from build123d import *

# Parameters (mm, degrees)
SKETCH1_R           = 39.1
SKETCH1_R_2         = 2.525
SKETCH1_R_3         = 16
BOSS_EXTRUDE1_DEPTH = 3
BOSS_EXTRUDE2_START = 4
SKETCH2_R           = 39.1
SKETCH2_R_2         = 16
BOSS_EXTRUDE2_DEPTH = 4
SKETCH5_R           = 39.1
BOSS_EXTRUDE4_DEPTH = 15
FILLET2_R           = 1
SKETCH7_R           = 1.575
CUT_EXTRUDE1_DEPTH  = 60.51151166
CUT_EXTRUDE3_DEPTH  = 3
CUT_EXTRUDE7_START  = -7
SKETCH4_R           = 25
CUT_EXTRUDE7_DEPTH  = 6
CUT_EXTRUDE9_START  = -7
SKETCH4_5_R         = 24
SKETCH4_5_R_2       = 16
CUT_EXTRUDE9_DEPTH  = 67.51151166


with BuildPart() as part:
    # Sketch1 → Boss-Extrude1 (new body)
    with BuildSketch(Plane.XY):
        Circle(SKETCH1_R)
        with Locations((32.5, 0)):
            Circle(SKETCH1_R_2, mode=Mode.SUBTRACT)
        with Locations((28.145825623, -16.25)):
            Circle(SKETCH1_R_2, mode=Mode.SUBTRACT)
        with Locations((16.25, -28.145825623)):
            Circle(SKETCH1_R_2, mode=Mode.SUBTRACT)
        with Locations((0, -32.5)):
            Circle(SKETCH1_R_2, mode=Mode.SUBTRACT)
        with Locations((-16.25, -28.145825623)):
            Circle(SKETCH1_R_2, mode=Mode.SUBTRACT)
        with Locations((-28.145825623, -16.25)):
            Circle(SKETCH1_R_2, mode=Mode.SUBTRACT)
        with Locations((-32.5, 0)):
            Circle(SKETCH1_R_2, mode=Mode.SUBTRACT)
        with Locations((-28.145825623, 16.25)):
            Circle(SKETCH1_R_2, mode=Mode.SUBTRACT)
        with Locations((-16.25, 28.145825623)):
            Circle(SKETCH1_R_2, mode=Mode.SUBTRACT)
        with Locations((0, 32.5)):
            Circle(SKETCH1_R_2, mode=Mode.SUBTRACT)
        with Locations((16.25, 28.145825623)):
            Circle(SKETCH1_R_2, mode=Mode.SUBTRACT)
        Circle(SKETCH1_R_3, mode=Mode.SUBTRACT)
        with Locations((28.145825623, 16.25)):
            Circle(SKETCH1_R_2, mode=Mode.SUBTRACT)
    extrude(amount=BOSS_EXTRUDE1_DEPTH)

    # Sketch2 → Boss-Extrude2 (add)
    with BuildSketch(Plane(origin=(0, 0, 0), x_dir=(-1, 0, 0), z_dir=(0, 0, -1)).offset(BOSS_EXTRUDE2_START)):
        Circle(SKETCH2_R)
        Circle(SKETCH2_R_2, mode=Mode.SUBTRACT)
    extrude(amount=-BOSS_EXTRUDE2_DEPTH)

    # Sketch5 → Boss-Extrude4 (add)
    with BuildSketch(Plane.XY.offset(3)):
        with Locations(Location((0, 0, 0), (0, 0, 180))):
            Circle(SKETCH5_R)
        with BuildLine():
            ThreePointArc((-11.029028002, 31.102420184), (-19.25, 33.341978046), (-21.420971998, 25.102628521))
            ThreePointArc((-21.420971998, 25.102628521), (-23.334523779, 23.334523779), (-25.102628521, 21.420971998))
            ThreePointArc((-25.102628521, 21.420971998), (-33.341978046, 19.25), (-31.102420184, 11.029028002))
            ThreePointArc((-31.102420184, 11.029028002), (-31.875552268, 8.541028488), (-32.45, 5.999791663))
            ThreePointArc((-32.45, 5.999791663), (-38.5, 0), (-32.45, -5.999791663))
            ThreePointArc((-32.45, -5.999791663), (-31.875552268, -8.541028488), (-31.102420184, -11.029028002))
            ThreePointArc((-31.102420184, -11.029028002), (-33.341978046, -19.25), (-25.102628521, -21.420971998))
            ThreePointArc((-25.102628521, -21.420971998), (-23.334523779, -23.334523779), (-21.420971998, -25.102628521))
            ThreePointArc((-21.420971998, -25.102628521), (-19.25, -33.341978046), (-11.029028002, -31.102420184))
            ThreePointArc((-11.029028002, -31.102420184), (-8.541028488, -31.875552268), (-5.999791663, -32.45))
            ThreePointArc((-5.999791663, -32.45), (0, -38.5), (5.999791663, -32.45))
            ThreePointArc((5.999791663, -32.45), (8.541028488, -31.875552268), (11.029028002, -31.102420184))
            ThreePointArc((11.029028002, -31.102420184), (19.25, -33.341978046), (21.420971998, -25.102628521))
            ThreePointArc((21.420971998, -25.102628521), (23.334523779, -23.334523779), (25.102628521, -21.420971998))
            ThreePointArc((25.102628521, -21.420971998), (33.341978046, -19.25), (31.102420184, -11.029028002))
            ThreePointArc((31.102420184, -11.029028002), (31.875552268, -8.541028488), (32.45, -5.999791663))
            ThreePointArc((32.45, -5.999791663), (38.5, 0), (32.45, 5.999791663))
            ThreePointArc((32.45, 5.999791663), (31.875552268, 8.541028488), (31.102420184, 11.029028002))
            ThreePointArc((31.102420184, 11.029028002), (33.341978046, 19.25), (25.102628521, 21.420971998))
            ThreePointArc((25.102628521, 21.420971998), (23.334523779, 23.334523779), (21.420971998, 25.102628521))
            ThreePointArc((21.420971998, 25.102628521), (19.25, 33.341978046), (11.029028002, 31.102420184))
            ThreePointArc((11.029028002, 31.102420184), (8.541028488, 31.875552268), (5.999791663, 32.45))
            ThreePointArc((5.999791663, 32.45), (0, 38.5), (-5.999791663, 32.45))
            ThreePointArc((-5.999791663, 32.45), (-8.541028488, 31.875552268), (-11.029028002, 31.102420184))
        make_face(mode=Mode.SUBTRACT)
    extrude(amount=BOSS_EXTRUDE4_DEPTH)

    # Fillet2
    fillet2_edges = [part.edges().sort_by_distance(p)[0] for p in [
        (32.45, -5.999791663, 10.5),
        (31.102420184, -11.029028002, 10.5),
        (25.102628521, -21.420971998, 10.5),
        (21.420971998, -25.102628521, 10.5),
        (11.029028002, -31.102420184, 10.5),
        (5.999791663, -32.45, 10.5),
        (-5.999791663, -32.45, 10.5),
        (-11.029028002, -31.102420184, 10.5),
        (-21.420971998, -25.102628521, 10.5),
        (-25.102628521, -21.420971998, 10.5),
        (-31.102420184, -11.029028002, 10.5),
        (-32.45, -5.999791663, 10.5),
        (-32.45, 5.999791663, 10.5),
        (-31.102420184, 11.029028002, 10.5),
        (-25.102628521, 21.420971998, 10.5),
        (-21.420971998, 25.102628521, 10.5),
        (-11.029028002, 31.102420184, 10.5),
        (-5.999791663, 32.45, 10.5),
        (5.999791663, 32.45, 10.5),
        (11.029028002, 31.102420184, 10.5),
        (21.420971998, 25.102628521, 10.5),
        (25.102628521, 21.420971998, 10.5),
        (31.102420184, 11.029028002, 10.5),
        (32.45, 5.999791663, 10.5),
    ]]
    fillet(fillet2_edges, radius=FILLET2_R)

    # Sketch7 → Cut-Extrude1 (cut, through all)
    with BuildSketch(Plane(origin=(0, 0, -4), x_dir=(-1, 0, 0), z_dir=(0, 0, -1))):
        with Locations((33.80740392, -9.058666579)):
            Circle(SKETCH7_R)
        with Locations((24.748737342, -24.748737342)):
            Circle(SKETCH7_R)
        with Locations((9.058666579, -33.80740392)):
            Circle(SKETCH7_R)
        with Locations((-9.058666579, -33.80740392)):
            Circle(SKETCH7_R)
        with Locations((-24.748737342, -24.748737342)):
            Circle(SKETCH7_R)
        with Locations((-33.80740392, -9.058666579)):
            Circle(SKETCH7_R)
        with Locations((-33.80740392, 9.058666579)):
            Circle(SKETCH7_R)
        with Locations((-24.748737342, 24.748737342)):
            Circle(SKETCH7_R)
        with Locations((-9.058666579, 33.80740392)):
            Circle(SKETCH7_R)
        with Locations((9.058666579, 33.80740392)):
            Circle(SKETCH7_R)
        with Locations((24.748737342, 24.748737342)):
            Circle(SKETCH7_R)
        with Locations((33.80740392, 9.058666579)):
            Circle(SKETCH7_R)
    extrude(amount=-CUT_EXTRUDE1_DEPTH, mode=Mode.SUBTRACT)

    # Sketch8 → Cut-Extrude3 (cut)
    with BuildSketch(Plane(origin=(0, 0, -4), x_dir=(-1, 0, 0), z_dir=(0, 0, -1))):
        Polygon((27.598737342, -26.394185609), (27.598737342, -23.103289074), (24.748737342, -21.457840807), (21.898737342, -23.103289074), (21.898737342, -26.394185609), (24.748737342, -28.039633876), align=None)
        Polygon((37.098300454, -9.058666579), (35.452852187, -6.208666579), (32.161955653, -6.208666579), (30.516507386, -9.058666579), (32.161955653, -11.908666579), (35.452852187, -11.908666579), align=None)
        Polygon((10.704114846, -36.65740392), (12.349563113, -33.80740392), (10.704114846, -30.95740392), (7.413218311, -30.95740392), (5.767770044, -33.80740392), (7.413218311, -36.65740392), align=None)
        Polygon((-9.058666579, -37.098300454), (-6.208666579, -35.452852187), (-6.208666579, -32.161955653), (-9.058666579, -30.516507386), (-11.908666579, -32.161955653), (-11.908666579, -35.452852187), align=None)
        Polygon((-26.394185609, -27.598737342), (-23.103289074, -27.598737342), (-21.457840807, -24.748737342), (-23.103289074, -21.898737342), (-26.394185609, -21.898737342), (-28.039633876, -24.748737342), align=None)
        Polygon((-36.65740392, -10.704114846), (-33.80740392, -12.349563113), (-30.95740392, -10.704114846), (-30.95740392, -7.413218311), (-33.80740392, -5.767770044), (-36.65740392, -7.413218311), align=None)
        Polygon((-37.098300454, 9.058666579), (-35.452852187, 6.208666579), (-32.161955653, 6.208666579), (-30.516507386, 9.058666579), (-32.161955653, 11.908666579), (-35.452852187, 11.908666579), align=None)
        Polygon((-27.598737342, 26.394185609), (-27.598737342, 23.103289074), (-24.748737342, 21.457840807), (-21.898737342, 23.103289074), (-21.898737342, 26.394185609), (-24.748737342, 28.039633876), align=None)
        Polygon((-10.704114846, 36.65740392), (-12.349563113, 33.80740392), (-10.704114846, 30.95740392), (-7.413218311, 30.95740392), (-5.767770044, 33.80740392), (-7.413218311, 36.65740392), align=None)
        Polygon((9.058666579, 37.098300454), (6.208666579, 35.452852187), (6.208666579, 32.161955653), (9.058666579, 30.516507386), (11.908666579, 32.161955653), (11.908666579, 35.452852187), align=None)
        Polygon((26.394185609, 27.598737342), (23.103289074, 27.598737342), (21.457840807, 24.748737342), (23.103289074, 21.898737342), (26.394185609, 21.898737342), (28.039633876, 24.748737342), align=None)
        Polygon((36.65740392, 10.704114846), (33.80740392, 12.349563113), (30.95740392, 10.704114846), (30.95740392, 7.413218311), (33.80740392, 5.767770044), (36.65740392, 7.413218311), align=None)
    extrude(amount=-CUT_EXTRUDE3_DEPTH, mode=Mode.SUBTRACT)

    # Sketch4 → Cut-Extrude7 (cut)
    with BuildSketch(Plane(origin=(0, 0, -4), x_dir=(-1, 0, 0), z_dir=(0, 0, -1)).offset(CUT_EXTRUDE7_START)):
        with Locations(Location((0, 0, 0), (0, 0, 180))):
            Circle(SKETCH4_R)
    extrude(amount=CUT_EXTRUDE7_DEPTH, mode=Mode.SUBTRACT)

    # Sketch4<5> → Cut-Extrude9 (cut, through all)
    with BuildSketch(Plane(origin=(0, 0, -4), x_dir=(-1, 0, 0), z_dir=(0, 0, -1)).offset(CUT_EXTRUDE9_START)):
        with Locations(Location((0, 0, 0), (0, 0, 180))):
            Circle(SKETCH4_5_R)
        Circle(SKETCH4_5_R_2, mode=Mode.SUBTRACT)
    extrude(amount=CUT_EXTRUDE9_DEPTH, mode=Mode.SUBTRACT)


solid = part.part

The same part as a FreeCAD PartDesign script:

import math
import FreeCAD as App
import Part
import Sketcher
Q = App.Units.Quantity


def edges_at(feature, points):
    """Names of the edges that pass closest to the given points."""
    edges = feature.Shape.Edges
    near = lambda p: min(range(len(edges)), key=lambda i: edges[i].distToShape(Part.Vertex(*p))[0])
    return sorted({f"Edge{near(p) + 1}" for p in points})

doc = App.newDocument("Part")
body = doc.addObject("PartDesign::Body", "Body")

sketch1 = doc.addObject("Sketcher::SketchObject", "Sketch")
body.addObject(sketch1)
sketch1.AttachmentSupport = (doc.XY_Plane, [""])
sketch1.MapMode = "FlatFace"
sketch1.addGeometry([
    Part.Circle(App.Vector(0, 0, 0), App.Vector(0, 0, 1), 39.1),
    Part.Circle(App.Vector(-16.2, -28.1, 0), App.Vector(0, 0, 1), 2.5),
    Part.Circle(App.Vector(-28.1, -16.2, 0), App.Vector(0, 0, 1), 2.5),
    Part.Circle(App.Vector(0, -32.5, 0), App.Vector(0, 0, 1), 2.5),
    Part.Circle(App.Vector(16.2, -28.1, 0), App.Vector(0, 0, 1), 2.5),
    Part.Circle(App.Vector(28.1, -16.2, 0), App.Vector(0, 0, 1), 2.5),
    Part.Circle(App.Vector(-32.5, 0, 0), App.Vector(0, 0, 1), 2.5),
    Part.Circle(App.Vector(-28.1, 16.2, 0), App.Vector(0, 0, 1), 2.5),
    Part.Circle(App.Vector(-16.2, 28.1, 0), App.Vector(0, 0, 1), 2.5),
    Part.Circle(App.Vector(0, 0, 0), App.Vector(0, 0, 1), 16),
    Part.Circle(App.Vector(32.5, 0, 0), App.Vector(0, 0, 1), 2.5),
    Part.Circle(App.Vector(28.1, 16.2, 0), App.Vector(0, 0, 1), 2.5),
    Part.Circle(App.Vector(0, 32.5, 0), App.Vector(0, 0, 1), 2.5),
    Part.Circle(App.Vector(16.2, 28.1, 0), App.Vector(0, 0, 1), 2.5),
], False)
sketch1.addConstraint([
    Sketcher.Constraint("Coincident", 0, 3, -1, 1),
    Sketcher.Constraint("Coincident", 9, 3, -1, 1),
    Sketcher.Constraint("Equal", 1, 2),
    Sketcher.Constraint("Equal", 2, 3),
    Sketcher.Constraint("Equal", 3, 4),
    Sketcher.Constraint("Equal", 4, 5),
    Sketcher.Constraint("Equal", 5, 6),
    Sketcher.Constraint("Equal", 6, 7),
    Sketcher.Constraint("Equal", 7, 8),
    Sketcher.Constraint("Equal", 8, 10),
    Sketcher.Constraint("Equal", 10, 11),
    Sketcher.Constraint("Equal", 11, 12),
    Sketcher.Constraint("Equal", 12, 13),
    Sketcher.Constraint("Symmetric", 5, 3, 7, 3, -1, 1),
    Sketcher.Constraint("Symmetric", 4, 3, 8, 3, -1, 1),
    Sketcher.Constraint("Symmetric", 6, 3, 10, 3, -1, 1),
    Sketcher.Constraint("Symmetric", 2, 3, 11, 3, -1, 1),
    Sketcher.Constraint("Symmetric", 3, 3, 12, 3, -1, 1),
    Sketcher.Constraint("Symmetric", 1, 3, 13, 3, -1, 1),
    Sketcher.Constraint("Symmetric", 1, 3, 4, 3, -2),
    Sketcher.Constraint("Symmetric", 2, 3, 5, 3, -2),
    Sketcher.Constraint("PointOnObject", 3, 3, -2),
    Sketcher.Constraint("PointOnObject", 6, 3, -1),
    Sketcher.Constraint("Diameter", 9, Q("32 mm")),
    Sketcher.Constraint("Diameter", 0, Q("78.2 mm")),
    Sketcher.Constraint("Diameter", 1, Q("5.05 mm")),
    Sketcher.Constraint("DistanceY", 3, 3, -1, 1, Q("32.5 mm")),
    Sketcher.Constraint("DistanceX", 6, 3, -1, 1, Q("32.5 mm")),
    Sketcher.Constraint("DistanceX", 1, 3, 4, 3, Q("32.5 mm")),
    Sketcher.Constraint("DistanceY", 2, 3, 7, 3, Q("32.5 mm")),
    Sketcher.Constraint("DistanceX", 2, 3, 5, 3, Q("56.291651 mm")),
    Sketcher.Constraint("DistanceY", 1, 3, 8, 3, Q("56.291651 mm")),
])
pad1 = doc.addObject("PartDesign::Pad", "Pad")
body.addObject(pad1)
pad1.Profile = sketch1
pad1.Length = 3

sketch2 = doc.addObject("Sketcher::SketchObject", "Sketch001")
body.addObject(sketch2)
sketch2.AttachmentSupport = (doc.XY_Plane, [""])
sketch2.MapMode = "FlatFace"
sketch2.AttachmentOffset = App.Placement(App.Vector(0, 0, -4), App.Rotation())
sketch2.addGeometry([
    Part.Circle(App.Vector(0, 0, 0), App.Vector(0, 0, 1), 39),
    Part.Circle(App.Vector(0, 0, 0), App.Vector(0, 0, 1), 16),
], False)
sketch2.addConstraint([
    Sketcher.Constraint("Coincident", 0, 3, -1, 1),
    Sketcher.Constraint("Coincident", 1, 3, -1, 1),
    Sketcher.Constraint("Diameter", 1, Q("32 mm")),
    Sketcher.Constraint("Diameter", 0, Q("78.2 mm")),
])
pad2 = doc.addObject("PartDesign::Pad", "Pad001")
body.addObject(pad2)
pad2.Profile = sketch2
pad2.Length = 4

sketch3 = doc.addObject("Sketcher::SketchObject", "Sketch002")
body.addObject(sketch3)
sketch3.AttachmentSupport = (doc.XY_Plane, [""])
sketch3.MapMode = "FlatFace"
sketch3.AttachmentOffset = App.Placement(App.Vector(0, 0, 3), App.Rotation())
sketch3.addGeometry([
    Part.Circle(App.Vector(0, 0, 0), App.Vector(0, 0, 1), 39),
    Part.ArcOfCircle(Part.Circle(App.Vector(-16, 28, 0), App.Vector(0, 0, 1), 6), math.radians(30), math.radians(210)),
    Part.ArcOfCircle(Part.Circle(App.Vector(0, 0, 0), App.Vector(0, 0, 1), 33), math.radians(100.48), math.radians(109.52)),
    Part.ArcOfCircle(Part.Circle(App.Vector(0, 32, 0), App.Vector(0, 0, 1), 6), math.radians(0), math.radians(180)),
    Part.ArcOfCircle(Part.Circle(App.Vector(0, 0, 0), App.Vector(0, 0, 1), 33), math.radians(70.48), math.radians(79.52)),
    Part.ArcOfCircle(Part.Circle(App.Vector(16, 28, 0), App.Vector(0, 0, 1), 6), math.radians(-30), math.radians(150)),
    Part.ArcOfCircle(Part.Circle(App.Vector(0, 0, 0), App.Vector(0, 0, 1), 33), math.radians(40.48), math.radians(49.52)),
    Part.ArcOfCircle(Part.Circle(App.Vector(28, 16, 0), App.Vector(0, 0, 1), 6), math.radians(-60), math.radians(120)),
    Part.ArcOfCircle(Part.Circle(App.Vector(0, 0, 0), App.Vector(0, 0, 1), 33), math.radians(10.48), math.radians(19.52)),
    Part.ArcOfCircle(Part.Circle(App.Vector(32, 0, 0), App.Vector(0, 0, 1), 6), math.radians(-90), math.radians(90)),
    Part.ArcOfCircle(Part.Circle(App.Vector(0, 0, 0), App.Vector(0, 0, 1), 33), math.radians(-19.52), math.radians(-10.48)),
    Part.ArcOfCircle(Part.Circle(App.Vector(28, -16, 0), App.Vector(0, 0, 1), 6), math.radians(-120), math.radians(60)),
    Part.ArcOfCircle(Part.Circle(App.Vector(0, 0, 0), App.Vector(0, 0, 1), 33), math.radians(-49.52), math.radians(-40.48)),
    Part.ArcOfCircle(Part.Circle(App.Vector(16, -28, 0), App.Vector(0, 0, 1), 6), math.radians(-150), math.radians(30)),
    Part.ArcOfCircle(Part.Circle(App.Vector(0, 0, 0), App.Vector(0, 0, 1), 33), math.radians(-79.52), math.radians(-70.48)),
    Part.ArcOfCircle(Part.Circle(App.Vector(0, -32, 0), App.Vector(0, 0, 1), 6), math.radians(180), math.radians(360)),
    Part.ArcOfCircle(Part.Circle(App.Vector(0, 0, 0), App.Vector(0, 0, 1), 33), math.radians(-109.52), math.radians(-100.48)),
    Part.ArcOfCircle(Part.Circle(App.Vector(-16, -28, 0), App.Vector(0, 0, 1), 6), math.radians(150), math.radians(330)),
    Part.ArcOfCircle(Part.Circle(App.Vector(0, 0, 0), App.Vector(0, 0, 1), 33), math.radians(-139.52), math.radians(-130.48)),
    Part.ArcOfCircle(Part.Circle(App.Vector(-28, -16, 0), App.Vector(0, 0, 1), 6), math.radians(120), math.radians(300)),
    Part.ArcOfCircle(Part.Circle(App.Vector(0, 0, 0), App.Vector(0, 0, 1), 33), math.radians(-169.52), math.radians(-160.48)),
    Part.ArcOfCircle(Part.Circle(App.Vector(-32, 0, 0), App.Vector(0, 0, 1), 6), math.radians(90), math.radians(270)),
    Part.ArcOfCircle(Part.Circle(App.Vector(0, 0, 0), App.Vector(0, 0, 1), 33), math.radians(160.48), math.radians(169.52)),
    Part.ArcOfCircle(Part.Circle(App.Vector(-28, 16, 0), App.Vector(0, 0, 1), 6), math.radians(60), math.radians(240)),
    Part.ArcOfCircle(Part.Circle(App.Vector(0, 0, 0), App.Vector(0, 0, 1), 33), math.radians(130.48), math.radians(139.52)),
], False)
sketch3.addConstraint([
    Sketcher.Constraint("Coincident", 1, 1, 2, 2),
    Sketcher.Constraint("Coincident", 2, 1, 3, 2),
    Sketcher.Constraint("Coincident", 3, 1, 4, 2),
    Sketcher.Constraint("Coincident", 4, 1, 5, 2),
    Sketcher.Constraint("Coincident", 5, 1, 6, 2),
    Sketcher.Constraint("Coincident", 6, 1, 7, 2),
    Sketcher.Constraint("Coincident", 7, 1, 8, 2),
    Sketcher.Constraint("Coincident", 8, 1, 9, 2),
    Sketcher.Constraint("Coincident", 9, 1, 10, 2),
    Sketcher.Constraint("Coincident", 10, 1, 11, 2),
    Sketcher.Constraint("Coincident", 11, 1, 12, 2),
    Sketcher.Constraint("Coincident", 12, 1, 13, 2),
    Sketcher.Constraint("Coincident", 13, 1, 14, 2),
    Sketcher.Constraint("Coincident", 14, 1, 15, 2),
    Sketcher.Constraint("Coincident", 15, 1, 16, 2),
    Sketcher.Constraint("Coincident", 16, 1, 17, 2),
    Sketcher.Constraint("Coincident", 17, 1, 18, 2),
    Sketcher.Constraint("Coincident", 18, 1, 19, 2),
    Sketcher.Constraint("Coincident", 19, 1, 20, 2),
    Sketcher.Constraint("Coincident", 20, 1, 21, 2),
    Sketcher.Constraint("Coincident", 21, 1, 22, 2),
    Sketcher.Constraint("Coincident", 22, 1, 23, 2),
    Sketcher.Constraint("Coincident", 23, 1, 24, 2),
    Sketcher.Constraint("Coincident", 24, 1, 1, 2),
    Sketcher.Constraint("Coincident", 0, 3, -1, 1),
    Sketcher.Constraint("Coincident", 2, 3, -1, 1),
    Sketcher.Constraint("Coincident", 4, 3, -1, 1),
    Sketcher.Constraint("Coincident", 6, 3, -1, 1),
    Sketcher.Constraint("Coincident", 8, 3, -1, 1),
    Sketcher.Constraint("Coincident", 10, 3, -1, 1),
    Sketcher.Constraint("Coincident", 12, 3, -1, 1),
    Sketcher.Constraint("Coincident", 14, 3, -1, 1),
    Sketcher.Constraint("Coincident", 16, 3, -1, 1),
    Sketcher.Constraint("Coincident", 18, 3, -1, 1),
    Sketcher.Constraint("Coincident", 20, 3, -1, 1),
    Sketcher.Constraint("Coincident", 22, 3, -1, 1),
    Sketcher.Constraint("Coincident", 24, 3, -1, 1),
    Sketcher.Constraint("Equal", 1, 3),
    Sketcher.Constraint("Equal", 2, 4),
    Sketcher.Constraint("Equal", 3, 5),
    Sketcher.Constraint("Equal", 4, 6),
    Sketcher.Constraint("Equal", 5, 7),
    Sketcher.Constraint("Equal", 6, 8),
    Sketcher.Constraint("Equal", 7, 9),
    Sketcher.Constraint("Equal", 8, 10),
    Sketcher.Constraint("Equal", 9, 11),
    Sketcher.Constraint("Equal", 10, 12),
    Sketcher.Constraint("Equal", 11, 13),
    Sketcher.Constraint("Equal", 12, 14),
    Sketcher.Constraint("Equal", 13, 15),
    Sketcher.Constraint("Equal", 14, 16),
    Sketcher.Constraint("Equal", 15, 17),
    Sketcher.Constraint("Equal", 16, 18),
    Sketcher.Constraint("Equal", 17, 19),
    Sketcher.Constraint("Equal", 18, 20),
    Sketcher.Constraint("Equal", 19, 21),
    Sketcher.Constraint("Equal", 20, 22),
    Sketcher.Constraint("Equal", 21, 23),
    Sketcher.Constraint("Equal", 22, 24),
    Sketcher.Constraint("Symmetric", 1, 3, 13, 3, -1, 1),
    Sketcher.Constraint("Symmetric", 3, 3, 15, 3, -1, 1),
    Sketcher.Constraint("Symmetric", 5, 3, 17, 3, -1, 1),
    Sketcher.Constraint("Symmetric", 7, 3, 19, 3, -1, 1),
    Sketcher.Constraint("Symmetric", 9, 3, 21, 3, -1, 1),
    Sketcher.Constraint("Symmetric", 11, 3, 23, 3, -1, 1),
    Sketcher.Constraint("Symmetric", 1, 3, 5, 3, -2),
    Sketcher.Constraint("Symmetric", 11, 3, 19, 3, -2),
    Sketcher.Constraint("PointOnObject", 3, 3, -2),
    Sketcher.Constraint("PointOnObject", 9, 3, -1),
    Sketcher.Constraint("Radius", 1, Q("6 mm")),
    Sketcher.Constraint("Radius", 2, Q("33 mm")),
    Sketcher.Constraint("Diameter", 0, Q("78.2 mm")),
    Sketcher.Constraint("DistanceY", -1, 1, 3, 3, Q("32.5 mm")),
    Sketcher.Constraint("DistanceX", -1, 1, 9, 3, Q("32.5 mm")),
    Sketcher.Constraint("DistanceX", 1, 3, 5, 3, Q("32.5 mm")),
    Sketcher.Constraint("DistanceY", 11, 3, 7, 3, Q("32.5 mm")),
    Sketcher.Constraint("DistanceX", 4, 1, 6, 1, Q("14.073601 mm")),
    Sketcher.Constraint("DistanceY", 7, 1, 5, 1, Q("14.073601 mm")),
])
pad3 = doc.addObject("PartDesign::Pad", "Pad002")
body.addObject(pad3)
pad3.Profile = sketch3
pad3.Length = 15
doc.recompute()

fillet = doc.addObject("PartDesign::Fillet", "Fillet")
body.addObject(fillet)
fillet.Base = (pad3, edges_at(pad3, [
    (32.45, -6, 10.5),
    (31.102, -11.029, 10.5),
    (25.103, -21.421, 10.5),
    (21.421, -25.103, 10.5),
    (11.029, -31.102, 10.5),
    (6, -32.45, 10.5),
    (-6, -32.45, 10.5),
    (-11.029, -31.102, 10.5),
    (-21.421, -25.103, 10.5),
    (-25.103, -21.421, 10.5),
    (-31.102, -11.029, 10.5),
    (-32.45, -6, 10.5),
    (-32.45, 6, 10.5),
    (-31.102, 11.029, 10.5),
    (-25.103, 21.421, 10.5),
    (-21.421, 25.103, 10.5),
    (-11.029, 31.102, 10.5),
    (-6, 32.45, 10.5),
    (6, 32.45, 10.5),
    (11.029, 31.102, 10.5),
    (21.421, 25.103, 10.5),
    (25.103, 21.421, 10.5),
    (31.102, 11.029, 10.5),
    (32.45, 6, 10.5),
]))
fillet.Radius = 1

sketch4 = doc.addObject("Sketcher::SketchObject", "Sketch003")
body.addObject(sketch4)
sketch4.AttachmentSupport = (doc.XY_Plane, [""])
sketch4.MapMode = "FlatFace"
sketch4.AttachmentOffset = App.Placement(App.Vector(0, 0, -4), App.Rotation())
sketch4.addGeometry([
    Part.Circle(App.Vector(-33.8, -9.1, 0), App.Vector(0, 0, 1), 1.6),
    Part.Circle(App.Vector(-24.7, -24.7, 0), App.Vector(0, 0, 1), 1.6),
    Part.Circle(App.Vector(-9.1, -33.8, 0), App.Vector(0, 0, 1), 1.6),
    Part.Circle(App.Vector(9.1, -33.8, 0), App.Vector(0, 0, 1), 1.6),
    Part.Circle(App.Vector(24.7, -24.7, 0), App.Vector(0, 0, 1), 1.6),
    Part.Circle(App.Vector(33.8, -9.1, 0), App.Vector(0, 0, 1), 1.6),
    Part.Circle(App.Vector(33.8, 9.1, 0), App.Vector(0, 0, 1), 1.6),
    Part.Circle(App.Vector(24.7, 24.7, 0), App.Vector(0, 0, 1), 1.6),
    Part.Circle(App.Vector(9.1, 33.8, 0), App.Vector(0, 0, 1), 1.6),
    Part.Circle(App.Vector(-9.1, 33.8, 0), App.Vector(0, 0, 1), 1.6),
    Part.Circle(App.Vector(-24.7, 24.7, 0), App.Vector(0, 0, 1), 1.6),
    Part.Circle(App.Vector(-33.8, 9.1, 0), App.Vector(0, 0, 1), 1.6),
], False)
sketch4.addConstraint([
    Sketcher.Constraint("Equal", 0, 1),
    Sketcher.Constraint("Equal", 1, 2),
    Sketcher.Constraint("Equal", 2, 3),
    Sketcher.Constraint("Equal", 3, 4),
    Sketcher.Constraint("Equal", 4, 5),
    Sketcher.Constraint("Equal", 5, 6),
    Sketcher.Constraint("Equal", 6, 7),
    Sketcher.Constraint("Equal", 7, 8),
    Sketcher.Constraint("Equal", 8, 9),
    Sketcher.Constraint("Equal", 9, 10),
    Sketcher.Constraint("Equal", 10, 11),
    Sketcher.Constraint("Symmetric", 0, 3, 6, 3, -1, 1),
    Sketcher.Constraint("Symmetric", 1, 3, 7, 3, -1, 1),
    Sketcher.Constraint("Symmetric", 2, 3, 8, 3, -1, 1),
    Sketcher.Constraint("Symmetric", 3, 3, 9, 3, -1, 1),
    Sketcher.Constraint("Symmetric", 4, 3, 10, 3, -1, 1),
    Sketcher.Constraint("Symmetric", 5, 3, 11, 3, -1, 1),
    Sketcher.Constraint("Symmetric", 2, 3, 3, 3, -2),
    Sketcher.Constraint("Symmetric", 1, 3, 4, 3, -2),
    Sketcher.Constraint("Symmetric", 0, 3, 5, 3, -2),
    Sketcher.Constraint("Diameter", 0, Q("3.15 mm")),
    Sketcher.Constraint("DistanceY", 1, 3, 0, 3, Q("15.690071 mm")),
    Sketcher.Constraint("DistanceX", 1, 3, 2, 3, Q("15.690071 mm")),
    Sketcher.Constraint("DistanceX", 0, 3, 3, 3, Q("42.86607 mm")),
    Sketcher.Constraint("DistanceY", 3, 3, 6, 3, Q("42.86607 mm")),
    Sketcher.Constraint("DistanceX", 0, 3, -1, 1, Q("33.807404 mm")),
    Sketcher.Constraint("DistanceY", 0, 3, -1, 1, Q("9.058667 mm")),
])
pocket1 = doc.addObject("PartDesign::Pocket", "Pocket")
body.addObject(pocket1)
pocket1.Profile = sketch4
pocket1.Type = "ThroughAll"
pocket1.Reversed = True

sketch5 = doc.addObject("Sketcher::SketchObject", "Sketch004")
body.addObject(sketch5)
sketch5.AttachmentSupport = (doc.XY_Plane, [""])
sketch5.MapMode = "FlatFace"
sketch5.AttachmentOffset = App.Placement(App.Vector(0, 0, -4), App.Rotation())
sketch5.addGeometry([
    Part.LineSegment(App.Vector(-27.6, -26.4, 0), App.Vector(-27.6, -23.1, 0)),
    Part.LineSegment(App.Vector(-27.6, -23.1, 0), App.Vector(-24.7, -21.5, 0)),
    Part.LineSegment(App.Vector(-24.7, -21.5, 0), App.Vector(-21.9, -23.1, 0)),
    Part.LineSegment(App.Vector(-21.9, -23.1, 0), App.Vector(-21.9, -26.4, 0)),
    Part.LineSegment(App.Vector(-21.9, -26.4, 0), App.Vector(-24.7, -28, 0)),
    Part.LineSegment(App.Vector(-24.7, -28, 0), App.Vector(-27.6, -26.4, 0)),
    Part.LineSegment(App.Vector(-37.1, -9.1, 0), App.Vector(-35.5, -6.2, 0)),
    Part.LineSegment(App.Vector(-35.5, -6.2, 0), App.Vector(-32.2, -6.2, 0)),
    Part.LineSegment(App.Vector(-32.2, -6.2, 0), App.Vector(-30.5, -9.1, 0)),
    Part.LineSegment(App.Vector(-30.5, -9.1, 0), App.Vector(-32.2, -11.9, 0)),
    Part.LineSegment(App.Vector(-32.2, -11.9, 0), App.Vector(-35.5, -11.9, 0)),
    Part.LineSegment(App.Vector(-35.5, -11.9, 0), App.Vector(-37.1, -9.1, 0)),
    Part.LineSegment(App.Vector(-10.7, -36.7, 0), App.Vector(-12.3, -33.8, 0)),
    Part.LineSegment(App.Vector(-12.3, -33.8, 0), App.Vector(-10.7, -31, 0)),
    Part.LineSegment(App.Vector(-10.7, -31, 0), App.Vector(-7.4, -31, 0)),
    Part.LineSegment(App.Vector(-7.4, -31, 0), App.Vector(-5.8, -33.8, 0)),
    Part.LineSegment(App.Vector(-5.8, -33.8, 0), App.Vector(-7.4, -36.7, 0)),
    Part.LineSegment(App.Vector(-7.4, -36.7, 0), App.Vector(-10.7, -36.7, 0)),
    Part.LineSegment(App.Vector(9.1, -37.1, 0), App.Vector(6.2, -35.5, 0)),
    Part.LineSegment(App.Vector(6.2, -35.5, 0), App.Vector(6.2, -32.2, 0)),
    Part.LineSegment(App.Vector(6.2, -32.2, 0), App.Vector(9.1, -30.5, 0)),
    Part.LineSegment(App.Vector(9.1, -30.5, 0), App.Vector(11.9, -32.2, 0)),
    Part.LineSegment(App.Vector(11.9, -32.2, 0), App.Vector(11.9, -35.5, 0)),
    Part.LineSegment(App.Vector(11.9, -35.5, 0), App.Vector(9.1, -37.1, 0)),
    Part.LineSegment(App.Vector(26.4, -27.6, 0), App.Vector(23.1, -27.6, 0)),
    Part.LineSegment(App.Vector(23.1, -27.6, 0), App.Vector(21.5, -24.7, 0)),
    Part.LineSegment(App.Vector(21.5, -24.7, 0), App.Vector(23.1, -21.9, 0)),
    Part.LineSegment(App.Vector(23.1, -21.9, 0), App.Vector(26.4, -21.9, 0)),
    Part.LineSegment(App.Vector(26.4, -21.9, 0), App.Vector(28, -24.7, 0)),
    Part.LineSegment(App.Vector(28, -24.7, 0), App.Vector(26.4, -27.6, 0)),
    Part.LineSegment(App.Vector(36.7, -10.7, 0), App.Vector(33.8, -12.3, 0)),
    Part.LineSegment(App.Vector(33.8, -12.3, 0), App.Vector(31, -10.7, 0)),
    Part.LineSegment(App.Vector(31, -10.7, 0), App.Vector(31, -7.4, 0)),
    Part.LineSegment(App.Vector(31, -7.4, 0), App.Vector(33.8, -5.8, 0)),
    Part.LineSegment(App.Vector(33.8, -5.8, 0), App.Vector(36.7, -7.4, 0)),
    Part.LineSegment(App.Vector(36.7, -7.4, 0), App.Vector(36.7, -10.7, 0)),
    Part.LineSegment(App.Vector(37.1, 9.1, 0), App.Vector(35.5, 6.2, 0)),
    Part.LineSegment(App.Vector(35.5, 6.2, 0), App.Vector(32.2, 6.2, 0)),
    Part.LineSegment(App.Vector(32.2, 6.2, 0), App.Vector(30.5, 9.1, 0)),
    Part.LineSegment(App.Vector(30.5, 9.1, 0), App.Vector(32.2, 11.9, 0)),
    Part.LineSegment(App.Vector(32.2, 11.9, 0), App.Vector(35.5, 11.9, 0)),
    Part.LineSegment(App.Vector(35.5, 11.9, 0), App.Vector(37.1, 9.1, 0)),
    Part.LineSegment(App.Vector(27.6, 26.4, 0), App.Vector(27.6, 23.1, 0)),
    Part.LineSegment(App.Vector(27.6, 23.1, 0), App.Vector(24.7, 21.5, 0)),
    Part.LineSegment(App.Vector(24.7, 21.5, 0), App.Vector(21.9, 23.1, 0)),
    Part.LineSegment(App.Vector(21.9, 23.1, 0), App.Vector(21.9, 26.4, 0)),
    Part.LineSegment(App.Vector(21.9, 26.4, 0), App.Vector(24.7, 28, 0)),
    Part.LineSegment(App.Vector(24.7, 28, 0), App.Vector(27.6, 26.4, 0)),
    Part.LineSegment(App.Vector(10.7, 36.7, 0), App.Vector(12.3, 33.8, 0)),
    Part.LineSegment(App.Vector(12.3, 33.8, 0), App.Vector(10.7, 31, 0)),
    Part.LineSegment(App.Vector(10.7, 31, 0), App.Vector(7.4, 31, 0)),
    Part.LineSegment(App.Vector(7.4, 31, 0), App.Vector(5.8, 33.8, 0)),
    Part.LineSegment(App.Vector(5.8, 33.8, 0), App.Vector(7.4, 36.7, 0)),
    Part.LineSegment(App.Vector(7.4, 36.7, 0), App.Vector(10.7, 36.7, 0)),
    Part.LineSegment(App.Vector(-9.1, 37.1, 0), App.Vector(-6.2, 35.5, 0)),
    Part.LineSegment(App.Vector(-6.2, 35.5, 0), App.Vector(-6.2, 32.2, 0)),
    Part.LineSegment(App.Vector(-6.2, 32.2, 0), App.Vector(-9.1, 30.5, 0)),
    Part.LineSegment(App.Vector(-9.1, 30.5, 0), App.Vector(-11.9, 32.2, 0)),
    Part.LineSegment(App.Vector(-11.9, 32.2, 0), App.Vector(-11.9, 35.5, 0)),
    Part.LineSegment(App.Vector(-11.9, 35.5, 0), App.Vector(-9.1, 37.1, 0)),
    Part.LineSegment(App.Vector(-26.4, 27.6, 0), App.Vector(-23.1, 27.6, 0)),
    Part.LineSegment(App.Vector(-23.1, 27.6, 0), App.Vector(-21.5, 24.7, 0)),
    Part.LineSegment(App.Vector(-21.5, 24.7, 0), App.Vector(-23.1, 21.9, 0)),
    Part.LineSegment(App.Vector(-23.1, 21.9, 0), App.Vector(-26.4, 21.9, 0)),
    Part.LineSegment(App.Vector(-26.4, 21.9, 0), App.Vector(-28, 24.7, 0)),
    Part.LineSegment(App.Vector(-28, 24.7, 0), App.Vector(-26.4, 27.6, 0)),
    Part.LineSegment(App.Vector(-36.7, 10.7, 0), App.Vector(-33.8, 12.3, 0)),
    Part.LineSegment(App.Vector(-33.8, 12.3, 0), App.Vector(-31, 10.7, 0)),
    Part.LineSegment(App.Vector(-31, 10.7, 0), App.Vector(-31, 7.4, 0)),
    Part.LineSegment(App.Vector(-31, 7.4, 0), App.Vector(-33.8, 5.8, 0)),
    Part.LineSegment(App.Vector(-33.8, 5.8, 0), App.Vector(-36.7, 7.4, 0)),
    Part.LineSegment(App.Vector(-36.7, 7.4, 0), App.Vector(-36.7, 10.7, 0)),
], False)
sketch5.addConstraint([
    Sketcher.Constraint("Coincident", 0, 2, 1, 1),
    Sketcher.Constraint("Coincident", 1, 2, 2, 1),
    Sketcher.Constraint("Coincident", 2, 2, 3, 1),
    Sketcher.Constraint("Coincident", 3, 2, 4, 1),
    Sketcher.Constraint("Coincident", 4, 2, 5, 1),
    Sketcher.Constraint("Coincident", 5, 2, 0, 1),
    Sketcher.Constraint("Coincident", 6, 2, 7, 1),
    Sketcher.Constraint("Coincident", 7, 2, 8, 1),
    Sketcher.Constraint("Coincident", 8, 2, 9, 1),
    Sketcher.Constraint("Coincident", 9, 2, 10, 1),
    Sketcher.Constraint("Coincident", 10, 2, 11, 1),
    Sketcher.Constraint("Coincident", 11, 2, 6, 1),
    Sketcher.Constraint("Coincident", 12, 2, 13, 1),
    Sketcher.Constraint("Coincident", 13, 2, 14, 1),
    Sketcher.Constraint("Coincident", 14, 2, 15, 1),
    Sketcher.Constraint("Coincident", 15, 2, 16, 1),
    Sketcher.Constraint("Coincident", 16, 2, 17, 1),
    Sketcher.Constraint("Coincident", 17, 2, 12, 1),
    Sketcher.Constraint("Coincident", 18, 2, 19, 1),
    Sketcher.Constraint("Coincident", 19, 2, 20, 1),
    Sketcher.Constraint("Coincident", 20, 2, 21, 1),
    Sketcher.Constraint("Coincident", 21, 2, 22, 1),
    Sketcher.Constraint("Coincident", 22, 2, 23, 1),
    Sketcher.Constraint("Coincident", 23, 2, 18, 1),
    Sketcher.Constraint("Coincident", 24, 2, 25, 1),
    Sketcher.Constraint("Coincident", 25, 2, 26, 1),
    Sketcher.Constraint("Coincident", 26, 2, 27, 1),
    Sketcher.Constraint("Coincident", 27, 2, 28, 1),
    Sketcher.Constraint("Coincident", 28, 2, 29, 1),
    Sketcher.Constraint("Coincident", 29, 2, 24, 1),
    Sketcher.Constraint("Coincident", 30, 2, 31, 1),
    Sketcher.Constraint("Coincident", 31, 2, 32, 1),
    Sketcher.Constraint("Coincident", 32, 2, 33, 1),
    Sketcher.Constraint("Coincident", 33, 2, 34, 1),
    Sketcher.Constraint("Coincident", 34, 2, 35, 1),
    Sketcher.Constraint("Coincident", 35, 2, 30, 1),
    Sketcher.Constraint("Coincident", 36, 2, 37, 1),
    Sketcher.Constraint("Coincident", 37, 2, 38, 1),
    Sketcher.Constraint("Coincident", 38, 2, 39, 1),
    Sketcher.Constraint("Coincident", 39, 2, 40, 1),
    Sketcher.Constraint("Coincident", 40, 2, 41, 1),
    Sketcher.Constraint("Coincident", 41, 2, 36, 1),
    Sketcher.Constraint("Coincident", 42, 2, 43, 1),
    Sketcher.Constraint("Coincident", 43, 2, 44, 1),
    Sketcher.Constraint("Coincident", 44, 2, 45, 1),
    Sketcher.Constraint("Coincident", 45, 2, 46, 1),
    Sketcher.Constraint("Coincident", 46, 2, 47, 1),
    Sketcher.Constraint("Coincident", 47, 2, 42, 1),
    Sketcher.Constraint("Coincident", 48, 2, 49, 1),
    Sketcher.Constraint("Coincident", 49, 2, 50, 1),
    Sketcher.Constraint("Coincident", 50, 2, 51, 1),
    Sketcher.Constraint("Coincident", 51, 2, 52, 1),
    Sketcher.Constraint("Coincident", 52, 2, 53, 1),
    Sketcher.Constraint("Coincident", 53, 2, 48, 1),
    Sketcher.Constraint("Coincident", 54, 2, 55, 1),
    Sketcher.Constraint("Coincident", 55, 2, 56, 1),
    Sketcher.Constraint("Coincident", 56, 2, 57, 1),
    Sketcher.Constraint("Coincident", 57, 2, 58, 1),
    Sketcher.Constraint("Coincident", 58, 2, 59, 1),
    Sketcher.Constraint("Coincident", 59, 2, 54, 1),
    Sketcher.Constraint("Coincident", 60, 2, 61, 1),
    Sketcher.Constraint("Coincident", 61, 2, 62, 1),
    Sketcher.Constraint("Coincident", 62, 2, 63, 1),
    Sketcher.Constraint("Coincident", 63, 2, 64, 1),
    Sketcher.Constraint("Coincident", 64, 2, 65, 1),
    Sketcher.Constraint("Coincident", 65, 2, 60, 1),
    Sketcher.Constraint("Coincident", 66, 2, 67, 1),
    Sketcher.Constraint("Coincident", 67, 2, 68, 1),
    Sketcher.Constraint("Coincident", 68, 2, 69, 1),
    Sketcher.Constraint("Coincident", 69, 2, 70, 1),
    Sketcher.Constraint("Coincident", 70, 2, 71, 1),
    Sketcher.Constraint("Coincident", 71, 2, 66, 1),
    Sketcher.Constraint("Vertical", 0),
    Sketcher.Constraint("Vertical", 3),
    Sketcher.Constraint("Horizontal", 7),
    Sketcher.Constraint("Horizontal", 10),
    Sketcher.Constraint("Horizontal", 14),
    Sketcher.Constraint("Horizontal", 17),
    Sketcher.Constraint("Vertical", 19),
    Sketcher.Constraint("Vertical", 22),
    Sketcher.Constraint("Horizontal", 24),
    Sketcher.Constraint("Horizontal", 27),
    Sketcher.Constraint("Vertical", 32),
    Sketcher.Constraint("Vertical", 35),
    Sketcher.Constraint("Horizontal", 37),
    Sketcher.Constraint("Horizontal", 40),
    Sketcher.Constraint("Vertical", 42),
    Sketcher.Constraint("Vertical", 45),
    Sketcher.Constraint("Horizontal", 50),
    Sketcher.Constraint("Horizontal", 53),
    Sketcher.Constraint("Vertical", 55),
    Sketcher.Constraint("Vertical", 58),
    Sketcher.Constraint("Horizontal", 60),
    Sketcher.Constraint("Horizontal", 63),
    Sketcher.Constraint("Vertical", 68),
    Sketcher.Constraint("Vertical", 71),
    Sketcher.Constraint("Symmetric", 6, 2, 36, 2, -1, 1),
    Sketcher.Constraint("Symmetric", 8, 2, 38, 2, -1, 1),
    Sketcher.Constraint("Symmetric", 9, 2, 39, 2, -1, 1),
    Sketcher.Constraint("Symmetric", 11, 2, 41, 2, -1, 1),
    Sketcher.Constraint("Symmetric", 0, 2, 42, 2, -1, 1),
    Sketcher.Constraint("Symmetric", 1, 2, 43, 2, -1, 1),
    Sketcher.Constraint("Symmetric", 2, 2, 44, 2, -1, 1),
    Sketcher.Constraint("Symmetric", 4, 2, 46, 2, -1, 1),
    Sketcher.Constraint("Symmetric", 12, 2, 48, 2, -1, 1),
    Sketcher.Constraint("Symmetric", 13, 2, 49, 2, -1, 1),
    Sketcher.Constraint("Symmetric", 15, 2, 51, 2, -1, 1),
    Sketcher.Constraint("Symmetric", 16, 2, 52, 2, -1, 1),
    Sketcher.Constraint("Symmetric", 18, 2, 54, 2, -1, 1),
    Sketcher.Constraint("Symmetric", 20, 2, 56, 2, -1, 1),
    Sketcher.Constraint("Symmetric", 21, 2, 57, 2, -1, 1),
    Sketcher.Constraint("Symmetric", 23, 2, 59, 2, -1, 1),
    Sketcher.Constraint("Symmetric", 24, 2, 60, 2, -1, 1),
    Sketcher.Constraint("Symmetric", 25, 2, 61, 2, -1, 1),
    Sketcher.Constraint("Symmetric", 26, 2, 62, 2, -1, 1),
    Sketcher.Constraint("Symmetric", 28, 2, 64, 2, -1, 1),
    Sketcher.Constraint("Symmetric", 30, 2, 66, 2, -1, 1),
    Sketcher.Constraint("Symmetric", 31, 2, 67, 2, -1, 1),
    Sketcher.Constraint("Symmetric", 33, 2, 69, 2, -1, 1),
    Sketcher.Constraint("Symmetric", 34, 2, 70, 2, -1, 1),
    Sketcher.Constraint("Parallel", 1, 4),
    Sketcher.Constraint("Parallel", 2, 5),
    Sketcher.Constraint("Perpendicular", 5, 6),
    Sketcher.Constraint("Perpendicular", 4, 8),
    Sketcher.Constraint("Parallel", 6, 9),
    Sketcher.Constraint("Parallel", 8, 11),
    Sketcher.Constraint("Parallel", 11, 12),
    Sketcher.Constraint("Parallel", 9, 13),
    Sketcher.Constraint("Parallel", 12, 15),
    Sketcher.Constraint("Parallel", 13, 16),
    Sketcher.Constraint("Perpendicular", 16, 18),
    Sketcher.Constraint("Perpendicular", 15, 20),
    Sketcher.Constraint("Parallel", 18, 21),
    Sketcher.Constraint("Parallel", 20, 23),
    Sketcher.Constraint("Perpendicular", 23, 25),
    Sketcher.Constraint("Perpendicular", 21, 26),
    Sketcher.Constraint("Parallel", 25, 28),
    Sketcher.Constraint("Parallel", 26, 29),
    Sketcher.Constraint("Perpendicular", 28, 30),
    Sketcher.Constraint("Perpendicular", 29, 31),
    Sketcher.Constraint("Parallel", 30, 33),
    Sketcher.Constraint("Parallel", 31, 34),
    Sketcher.Constraint("Perpendicular", 33, 38),
    Sketcher.Constraint("Parallel", 38, 41),
    Sketcher.Constraint("Parallel", 43, 46),
    Sketcher.Constraint("Parallel", 44, 47),
    Sketcher.Constraint("Perpendicular", 46, 48),
    Sketcher.Constraint("Parallel", 48, 51),
    Sketcher.Constraint("Perpendicular", 51, 56),
    Sketcher.Constraint("Parallel", 56, 59),
    Sketcher.Constraint("Parallel", 61, 64),
    Sketcher.Constraint("Parallel", 62, 65),
    Sketcher.Constraint("Perpendicular", 64, 66),
    Sketcher.Constraint("Parallel", 66, 69),
    Sketcher.Constraint("Horizontal", 0, 2, 2, 2),
    Sketcher.Constraint("Horizontal", 3, 2, 5, 2),
    Sketcher.Constraint("Horizontal", 8, 2, 11, 2),
    Sketcher.Constraint("Horizontal", 12, 2, 15, 2),
    Sketcher.Constraint("Horizontal", 19, 2, 21, 2),
    Sketcher.Constraint("Horizontal", 18, 2, 22, 2),
    Sketcher.Constraint("Horizontal", 25, 2, 28, 2),
    Sketcher.Constraint("Horizontal", 32, 2, 34, 2),
    Sketcher.Constraint("Horizontal", 31, 2, 35, 2),
    Sketcher.Constraint("Vertical", 1, 2, 4, 2),
    Sketcher.Constraint("Vertical", 7, 2, 9, 2),
    Sketcher.Constraint("Vertical", 14, 2, 16, 2),
    Sketcher.Constraint("Vertical", 24, 2, 26, 2),
    Sketcher.Constraint("Equal", 10, 14),
    Sketcher.Constraint("Equal", 17, 24),
    Sketcher.Constraint("Equal", 63, 0),
    Sketcher.Constraint("Equal", 3, 19),
    Sketcher.Constraint("Equal", 22, 32),
    Sketcher.Constraint("Equal", 5, 6),
    Sketcher.Constraint("Equal", 11, 12),
    Sketcher.Constraint("Equal", 16, 18),
    Sketcher.Constraint("Equal", 23, 25),
    Sketcher.Constraint("Equal", 29, 30),
    Sketcher.Constraint("Angle", 1, Q("30 deg")),
    Sketcher.Constraint("DistanceX", 11, 2, -1, 1, Q("37.0983 mm")),
    Sketcher.Constraint("DistanceY", 23, 2, -1, 1, Q("37.0983 mm")),
    Sketcher.Constraint("DistanceX", 7, 1, 7, 2, Q("3.290897 mm")),
    Sketcher.Constraint("DistanceY", 0, 2, -1, 1, Q("23.103289 mm")),
    Sketcher.Constraint("DistanceY", 1, 2, -1, 1, Q("21.457841 mm")),
    Sketcher.Constraint("DistanceX", 14, 2, -1, 1, Q("7.413218 mm")),
    Sketcher.Constraint("DistanceX", -1, 1, 24, 2, Q("23.103289 mm")),
    Sketcher.Constraint("DistanceY", 32, 2, -1, 1, Q("7.413218 mm")),
    Sketcher.Constraint("DistanceX", 0, 2, -1, 1, Q("27.598737 mm")),
    Sketcher.Constraint("DistanceY", 6, 2, -1, 1, Q("6.208667 mm")),
    Sketcher.Constraint("DistanceY", 12, 2, -1, 1, Q("33.807404 mm")),
    Sketcher.Constraint("DistanceX", -1, 1, 18, 2, Q("6.208667 mm")),
    Sketcher.Constraint("DistanceY", 24, 2, -1, 1, Q("27.598737 mm")),
    Sketcher.Constraint("DistanceX", -1, 1, 30, 2, Q("33.807404 mm")),
])
pocket2 = doc.addObject("PartDesign::Pocket", "Pocket001")
body.addObject(pocket2)
pocket2.Profile = sketch5
pocket2.Length = 3
pocket2.Reversed = True

sketch6 = doc.addObject("Sketcher::SketchObject", "Sketch005")
body.addObject(sketch6)
sketch6.AttachmentSupport = (doc.XY_Plane, [""])
sketch6.MapMode = "FlatFace"
sketch6.AttachmentOffset = App.Placement(App.Vector(0, 0, 3), App.Rotation())
sketch6.addGeometry(Part.Circle(App.Vector(0, 0, 0), App.Vector(0, 0, 1), 25), False)
sketch6.addConstraint([
    Sketcher.Constraint("Coincident", 0, 3, -1, 1),
    Sketcher.Constraint("Diameter", 0, Q("50 mm")),
])
pocket3 = doc.addObject("PartDesign::Pocket", "Pocket002")
body.addObject(pocket3)
pocket3.Profile = sketch6
pocket3.Length = 6

sketch7 = doc.addObject("Sketcher::SketchObject", "Sketch006")
body.addObject(sketch7)
sketch7.AttachmentSupport = (doc.XY_Plane, [""])
sketch7.MapMode = "FlatFace"
sketch7.AttachmentOffset = App.Placement(App.Vector(0, 0, 3), App.Rotation())
sketch7.addGeometry([
    Part.Circle(App.Vector(0, 0, 0), App.Vector(0, 0, 1), 24),
    Part.Circle(App.Vector(0, 0, 0), App.Vector(0, 0, 1), 16),
], False)
sketch7.addConstraint([
    Sketcher.Constraint("Coincident", 0, 3, -1, 1),
    Sketcher.Constraint("Coincident", 1, 3, -1, 1),
    Sketcher.Constraint("Diameter", 0, Q("48 mm")),
    Sketcher.Constraint("Diameter", 1, Q("32 mm")),
])
pocket4 = doc.addObject("PartDesign::Pocket", "Pocket003")
body.addObject(pocket4)
pocket4.Profile = sketch7
pocket4.Type = "ThroughAll"

doc.recompute()
